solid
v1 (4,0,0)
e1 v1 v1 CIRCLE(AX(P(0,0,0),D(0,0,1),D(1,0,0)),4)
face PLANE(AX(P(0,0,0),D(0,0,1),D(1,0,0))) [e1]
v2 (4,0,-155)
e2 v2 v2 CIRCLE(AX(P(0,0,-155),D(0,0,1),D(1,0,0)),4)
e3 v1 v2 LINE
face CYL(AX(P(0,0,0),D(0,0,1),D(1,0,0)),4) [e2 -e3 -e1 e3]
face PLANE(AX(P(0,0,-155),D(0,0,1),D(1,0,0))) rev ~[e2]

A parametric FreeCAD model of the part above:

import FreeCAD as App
import Part
import Sketcher

V = App.Vector
Q = App.Units.Quantity

doc = App.newDocument("Part")
params = doc.addObject("Spreadsheet::Sheet", "Params")
for row, (alias, value) in enumerate([
    ("sketch1_diameter", "8 mm"),
    ("pad1_length", "155 mm"),
], start=1):
    params.set(f"A{row}", alias)
    params.set(f"B{row}", "=" + value)
    params.setAlias(f"B{row}", alias)

body = doc.addObject("PartDesign::Body", "Body")

# Sketch on XY plane
sketch1 = body.newObject("Sketcher::SketchObject", "Sketch")
sketch1.AttachmentSupport = (doc.getObject("XY_Plane"), [""])
sketch1.MapMode = "FlatFace"
sketch1.addGeometry(Part.Circle(V(0, 0, 0), V(0, 0, 1), 4), False)
sketch1.addConstraint([
    Sketcher.Constraint("Coincident", 0, 3, -1, 1),
    Sketcher.Constraint("Diameter", 0, Q("8 mm")),
])
sketch1.setExpression("Constraints[1]", "Params.sketch1_diameter")
pad1 = body.newObject("PartDesign::Pad", "Pad")
pad1.Profile = sketch1
pad1.setExpression("Length", "Params.pad1_length")
pad1.Reversed = True

doc.recompute()
